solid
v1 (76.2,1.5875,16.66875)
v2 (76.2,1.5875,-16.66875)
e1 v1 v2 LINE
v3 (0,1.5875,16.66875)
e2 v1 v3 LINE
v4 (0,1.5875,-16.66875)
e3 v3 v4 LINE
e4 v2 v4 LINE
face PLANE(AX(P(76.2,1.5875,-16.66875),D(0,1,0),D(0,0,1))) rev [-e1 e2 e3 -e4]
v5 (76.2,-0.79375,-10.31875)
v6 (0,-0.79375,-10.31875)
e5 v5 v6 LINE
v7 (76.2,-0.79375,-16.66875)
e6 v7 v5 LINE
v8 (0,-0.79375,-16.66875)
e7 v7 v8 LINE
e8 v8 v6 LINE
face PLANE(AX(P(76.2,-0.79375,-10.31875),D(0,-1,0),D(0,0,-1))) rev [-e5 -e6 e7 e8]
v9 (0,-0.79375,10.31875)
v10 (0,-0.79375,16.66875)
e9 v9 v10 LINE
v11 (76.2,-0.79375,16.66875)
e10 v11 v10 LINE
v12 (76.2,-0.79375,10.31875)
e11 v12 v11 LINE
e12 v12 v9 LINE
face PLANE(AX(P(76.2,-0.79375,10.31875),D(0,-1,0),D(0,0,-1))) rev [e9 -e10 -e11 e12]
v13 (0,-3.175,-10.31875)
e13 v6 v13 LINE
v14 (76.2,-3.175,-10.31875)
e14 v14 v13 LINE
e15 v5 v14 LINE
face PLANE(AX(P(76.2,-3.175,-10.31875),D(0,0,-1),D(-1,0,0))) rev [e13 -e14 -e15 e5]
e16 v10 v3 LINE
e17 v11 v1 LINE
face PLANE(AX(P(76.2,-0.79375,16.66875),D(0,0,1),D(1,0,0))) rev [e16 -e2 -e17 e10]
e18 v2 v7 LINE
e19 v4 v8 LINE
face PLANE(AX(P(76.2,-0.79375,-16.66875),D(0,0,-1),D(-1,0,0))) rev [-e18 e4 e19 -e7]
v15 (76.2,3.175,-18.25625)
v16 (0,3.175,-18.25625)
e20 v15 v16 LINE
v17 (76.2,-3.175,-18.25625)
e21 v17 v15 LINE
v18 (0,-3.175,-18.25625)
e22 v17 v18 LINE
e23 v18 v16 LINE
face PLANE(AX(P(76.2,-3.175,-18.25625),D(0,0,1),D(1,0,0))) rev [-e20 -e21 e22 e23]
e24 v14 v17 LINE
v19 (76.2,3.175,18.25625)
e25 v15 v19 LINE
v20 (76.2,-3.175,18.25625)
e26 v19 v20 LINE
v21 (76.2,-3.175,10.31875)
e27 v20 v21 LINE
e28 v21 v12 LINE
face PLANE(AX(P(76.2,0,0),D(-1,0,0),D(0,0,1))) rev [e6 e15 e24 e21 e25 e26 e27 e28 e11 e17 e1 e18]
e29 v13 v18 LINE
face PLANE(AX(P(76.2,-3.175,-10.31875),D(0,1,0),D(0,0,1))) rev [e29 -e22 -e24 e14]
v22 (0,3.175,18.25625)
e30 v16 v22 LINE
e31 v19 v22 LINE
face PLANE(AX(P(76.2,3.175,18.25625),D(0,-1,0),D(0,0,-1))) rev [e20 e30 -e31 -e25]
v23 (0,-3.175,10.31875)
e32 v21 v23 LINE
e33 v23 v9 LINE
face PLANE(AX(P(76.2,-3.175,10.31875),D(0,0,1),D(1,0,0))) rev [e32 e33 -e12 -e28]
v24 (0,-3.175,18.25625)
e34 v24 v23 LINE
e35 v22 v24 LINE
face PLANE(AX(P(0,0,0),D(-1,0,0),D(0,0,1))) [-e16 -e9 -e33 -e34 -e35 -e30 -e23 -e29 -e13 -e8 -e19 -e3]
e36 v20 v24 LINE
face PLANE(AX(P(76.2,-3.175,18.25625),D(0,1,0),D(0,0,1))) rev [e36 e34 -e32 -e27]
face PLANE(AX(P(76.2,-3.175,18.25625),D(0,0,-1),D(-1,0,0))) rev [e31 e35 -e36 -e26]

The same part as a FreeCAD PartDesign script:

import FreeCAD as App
import Part
import Sketcher
from FreeCAD import Vector
Q = App.Units.Quantity


def add_polygon(sketch, points):
    """Adds a closed chain of lines whose ends are joined by coincident constraints."""
    first, n = sketch.GeometryCount, len(points)
    for a, b in zip(points, points[1:] + points[:1]):
        sketch.addGeometry(Part.LineSegment(App.Vector(*a, 0), App.Vector(*b, 0)), False)
    for i in range(n):
        sketch.addConstraint(Sketcher.Constraint("Coincident", first + i, 2, first + (i + 1) % n, 1))

doc = App.newDocument("Part")
body = doc.addObject("PartDesign::Body", "Body")

# Sketch on YZ plane
sketch1 = body.newObject("Sketcher::SketchObject", "Sketch")
sketch1.AttachmentSupport = (doc.getObject("YZ_Plane"), [""])
sketch1.MapMode = "FlatFace"
add_polygon(sketch1, [(-3.2, -10.3), (-3.2, -18.3), (3.2, -18.3), (3.2, 18.3), (-3.2, 18.3), (-3.2, 10.3), (-0.8, 10.3), (-0.8, 16.7), (1.6, 16.7), (1.6, -16.7), (-0.8, -16.7), (-0.8, -10.3)])  # lines 0-11
sketch1.addConstraint([
    Sketcher.Constraint("Vertical", 0),
    Sketcher.Constraint("Horizontal", 1),
    Sketcher.Constraint("Vertical", 2),
    Sketcher.Constraint("Horizontal", 3),
    Sketcher.Constraint("Vertical", 4),
    Sketcher.Constraint("Horizontal", 5),
    Sketcher.Constraint("Vertical", 6),
    Sketcher.Constraint("Horizontal", 7),
    Sketcher.Constraint("Vertical", 8),
    Sketcher.Constraint("Horizontal", 9),
    Sketcher.Constraint("Vertical", 10),
    Sketcher.Constraint("Horizontal", 11),
    Sketcher.Constraint("Symmetric", 0, 2, 2, 2, -1, 1),
    Sketcher.Constraint("Symmetric", 6, 2, 9, 2, -1),
    Sketcher.Constraint("Symmetric", 4, 2, 11, 2, -1),
    Sketcher.Constraint("Equal", 5, 7),
    Sketcher.Constraint("Equal", 3, 6),
    Sketcher.Constraint("DistanceX", 1, 1, 1, 2, Q("0.25 in")),
    Sketcher.Constraint("DistanceX", 5, 1, 5, 2, Q("0.09375 in")),
    Sketcher.Constraint("DistanceY", 0, 2, 0, 1, Q("0.3125 in")),
    Sketcher.Constraint("DistanceY", 2, 1, 2, 2, Q("1.4375 in")),
])
pad1 = body.newObject("PartDesign::Pad", "Pad")
pad1.Profile = sketch1
pad1.Length = Q("3 in")

doc.recompute()
